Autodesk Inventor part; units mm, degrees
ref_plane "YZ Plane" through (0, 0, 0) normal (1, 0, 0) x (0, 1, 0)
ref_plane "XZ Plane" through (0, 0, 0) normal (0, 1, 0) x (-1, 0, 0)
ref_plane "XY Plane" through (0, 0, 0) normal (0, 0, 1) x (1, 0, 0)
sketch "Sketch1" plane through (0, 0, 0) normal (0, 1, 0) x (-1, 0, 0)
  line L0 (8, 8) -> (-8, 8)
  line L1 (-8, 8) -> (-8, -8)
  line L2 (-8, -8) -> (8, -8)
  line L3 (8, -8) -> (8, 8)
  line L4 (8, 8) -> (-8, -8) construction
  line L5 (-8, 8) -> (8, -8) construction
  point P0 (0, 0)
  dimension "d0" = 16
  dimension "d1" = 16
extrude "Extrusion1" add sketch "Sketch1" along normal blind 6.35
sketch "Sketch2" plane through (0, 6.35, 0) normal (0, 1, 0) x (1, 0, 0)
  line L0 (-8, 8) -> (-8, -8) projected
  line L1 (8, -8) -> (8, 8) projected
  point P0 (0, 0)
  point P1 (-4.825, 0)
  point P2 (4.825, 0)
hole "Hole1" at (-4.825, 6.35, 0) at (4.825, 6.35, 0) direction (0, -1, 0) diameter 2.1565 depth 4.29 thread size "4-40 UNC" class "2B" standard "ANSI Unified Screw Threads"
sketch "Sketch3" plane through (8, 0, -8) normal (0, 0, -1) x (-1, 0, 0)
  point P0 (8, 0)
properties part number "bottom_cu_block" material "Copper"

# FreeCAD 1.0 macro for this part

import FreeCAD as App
import Part
import Sketcher
from FreeCAD import Vector

doc = App.newDocument("Part")
body = doc.addObject("PartDesign::Body", "Body")

sketch1 = doc.addObject("Sketcher::SketchObject", "Sketch")
body.addObject(sketch1)
sketch1.AttachmentSupport = (doc.XZ_Plane, [""])
sketch1.MapMode = "FlatFace"
sketch1.addGeometry([
    Part.LineSegment(Vector(-8, -8, 0), Vector(-8, 8, 0)),
    Part.LineSegment(Vector(-8, 8, 0), Vector(8, 8, 0)),
    Part.LineSegment(Vector(8, 8, 0), Vector(8, -8, 0)),
    Part.LineSegment(Vector(8, -8, 0), Vector(-8, -8, 0)),
], False)
sketch1.addConstraint([
    Sketcher.Constraint("Coincident", 0, 2, 1, 1),
    Sketcher.Constraint("Coincident", 1, 2, 2, 1),
    Sketcher.Constraint("Coincident", 2, 2, 3, 1),
    Sketcher.Constraint("Coincident", 3, 2, 0, 1),
    Sketcher.Constraint("Vertical", 0),
    Sketcher.Constraint("Horizontal", 1),
    Sketcher.Constraint("Vertical", 2),
    Sketcher.Constraint("Horizontal", 3),
    Sketcher.Constraint("Symmetric", 0, 2, 2, 2, -1, 1),
    Sketcher.Constraint("Equal", 3, 0),
    Sketcher.Constraint("DistanceX", 1, 1, 1, 2, 16.0),
])
pad1 = doc.addObject("PartDesign::Pad", "Pad")
body.addObject(pad1)
pad1.Profile = sketch1
pad1.Length = 6.35
pad1.Reversed = True

sketch2 = doc.addObject("Sketcher::SketchObject", "Sketch001")
body.addObject(sketch2)
sketch2.AttachmentSupport = (doc.XZ_Plane, [""])
sketch2.MapMode = "FlatFace"
sketch2.AttachmentOffset = App.Placement(Vector(0, 0, -6.35), App.Rotation())
sketch2.addGeometry([
    Part.Circle(Vector(-4.825, 0, 0), Vector(0, 0, 1), 1.07825),
    Part.Circle(Vector(4.825, 0, 0), Vector(0, 0, 1), 1.07825),
], False)
sketch2.addConstraint([
    Sketcher.Constraint("Equal", 0, 1),
    Sketcher.Constraint("Symmetric", 0, 3, 1, 3, -1, 1),
    Sketcher.Constraint("PointOnObject", 0, 3, -1),
    Sketcher.Constraint("Diameter", 0, 2.1565),
    Sketcher.Constraint("DistanceX", 0, 3, 1, 3, 9.65),
])
doc.recompute()
hole = doc.addObject("PartDesign::Hole", "Hole")
body.addObject(hole)
hole.Profile = sketch2
hole.ThreadType = "None"
hole.Diameter = 2.1565
hole.DepthType = "Dimension"
hole.Depth = 4.29
hole.DrillPoint = "Flat"
hole.Reversed = True

doc.recompute()
